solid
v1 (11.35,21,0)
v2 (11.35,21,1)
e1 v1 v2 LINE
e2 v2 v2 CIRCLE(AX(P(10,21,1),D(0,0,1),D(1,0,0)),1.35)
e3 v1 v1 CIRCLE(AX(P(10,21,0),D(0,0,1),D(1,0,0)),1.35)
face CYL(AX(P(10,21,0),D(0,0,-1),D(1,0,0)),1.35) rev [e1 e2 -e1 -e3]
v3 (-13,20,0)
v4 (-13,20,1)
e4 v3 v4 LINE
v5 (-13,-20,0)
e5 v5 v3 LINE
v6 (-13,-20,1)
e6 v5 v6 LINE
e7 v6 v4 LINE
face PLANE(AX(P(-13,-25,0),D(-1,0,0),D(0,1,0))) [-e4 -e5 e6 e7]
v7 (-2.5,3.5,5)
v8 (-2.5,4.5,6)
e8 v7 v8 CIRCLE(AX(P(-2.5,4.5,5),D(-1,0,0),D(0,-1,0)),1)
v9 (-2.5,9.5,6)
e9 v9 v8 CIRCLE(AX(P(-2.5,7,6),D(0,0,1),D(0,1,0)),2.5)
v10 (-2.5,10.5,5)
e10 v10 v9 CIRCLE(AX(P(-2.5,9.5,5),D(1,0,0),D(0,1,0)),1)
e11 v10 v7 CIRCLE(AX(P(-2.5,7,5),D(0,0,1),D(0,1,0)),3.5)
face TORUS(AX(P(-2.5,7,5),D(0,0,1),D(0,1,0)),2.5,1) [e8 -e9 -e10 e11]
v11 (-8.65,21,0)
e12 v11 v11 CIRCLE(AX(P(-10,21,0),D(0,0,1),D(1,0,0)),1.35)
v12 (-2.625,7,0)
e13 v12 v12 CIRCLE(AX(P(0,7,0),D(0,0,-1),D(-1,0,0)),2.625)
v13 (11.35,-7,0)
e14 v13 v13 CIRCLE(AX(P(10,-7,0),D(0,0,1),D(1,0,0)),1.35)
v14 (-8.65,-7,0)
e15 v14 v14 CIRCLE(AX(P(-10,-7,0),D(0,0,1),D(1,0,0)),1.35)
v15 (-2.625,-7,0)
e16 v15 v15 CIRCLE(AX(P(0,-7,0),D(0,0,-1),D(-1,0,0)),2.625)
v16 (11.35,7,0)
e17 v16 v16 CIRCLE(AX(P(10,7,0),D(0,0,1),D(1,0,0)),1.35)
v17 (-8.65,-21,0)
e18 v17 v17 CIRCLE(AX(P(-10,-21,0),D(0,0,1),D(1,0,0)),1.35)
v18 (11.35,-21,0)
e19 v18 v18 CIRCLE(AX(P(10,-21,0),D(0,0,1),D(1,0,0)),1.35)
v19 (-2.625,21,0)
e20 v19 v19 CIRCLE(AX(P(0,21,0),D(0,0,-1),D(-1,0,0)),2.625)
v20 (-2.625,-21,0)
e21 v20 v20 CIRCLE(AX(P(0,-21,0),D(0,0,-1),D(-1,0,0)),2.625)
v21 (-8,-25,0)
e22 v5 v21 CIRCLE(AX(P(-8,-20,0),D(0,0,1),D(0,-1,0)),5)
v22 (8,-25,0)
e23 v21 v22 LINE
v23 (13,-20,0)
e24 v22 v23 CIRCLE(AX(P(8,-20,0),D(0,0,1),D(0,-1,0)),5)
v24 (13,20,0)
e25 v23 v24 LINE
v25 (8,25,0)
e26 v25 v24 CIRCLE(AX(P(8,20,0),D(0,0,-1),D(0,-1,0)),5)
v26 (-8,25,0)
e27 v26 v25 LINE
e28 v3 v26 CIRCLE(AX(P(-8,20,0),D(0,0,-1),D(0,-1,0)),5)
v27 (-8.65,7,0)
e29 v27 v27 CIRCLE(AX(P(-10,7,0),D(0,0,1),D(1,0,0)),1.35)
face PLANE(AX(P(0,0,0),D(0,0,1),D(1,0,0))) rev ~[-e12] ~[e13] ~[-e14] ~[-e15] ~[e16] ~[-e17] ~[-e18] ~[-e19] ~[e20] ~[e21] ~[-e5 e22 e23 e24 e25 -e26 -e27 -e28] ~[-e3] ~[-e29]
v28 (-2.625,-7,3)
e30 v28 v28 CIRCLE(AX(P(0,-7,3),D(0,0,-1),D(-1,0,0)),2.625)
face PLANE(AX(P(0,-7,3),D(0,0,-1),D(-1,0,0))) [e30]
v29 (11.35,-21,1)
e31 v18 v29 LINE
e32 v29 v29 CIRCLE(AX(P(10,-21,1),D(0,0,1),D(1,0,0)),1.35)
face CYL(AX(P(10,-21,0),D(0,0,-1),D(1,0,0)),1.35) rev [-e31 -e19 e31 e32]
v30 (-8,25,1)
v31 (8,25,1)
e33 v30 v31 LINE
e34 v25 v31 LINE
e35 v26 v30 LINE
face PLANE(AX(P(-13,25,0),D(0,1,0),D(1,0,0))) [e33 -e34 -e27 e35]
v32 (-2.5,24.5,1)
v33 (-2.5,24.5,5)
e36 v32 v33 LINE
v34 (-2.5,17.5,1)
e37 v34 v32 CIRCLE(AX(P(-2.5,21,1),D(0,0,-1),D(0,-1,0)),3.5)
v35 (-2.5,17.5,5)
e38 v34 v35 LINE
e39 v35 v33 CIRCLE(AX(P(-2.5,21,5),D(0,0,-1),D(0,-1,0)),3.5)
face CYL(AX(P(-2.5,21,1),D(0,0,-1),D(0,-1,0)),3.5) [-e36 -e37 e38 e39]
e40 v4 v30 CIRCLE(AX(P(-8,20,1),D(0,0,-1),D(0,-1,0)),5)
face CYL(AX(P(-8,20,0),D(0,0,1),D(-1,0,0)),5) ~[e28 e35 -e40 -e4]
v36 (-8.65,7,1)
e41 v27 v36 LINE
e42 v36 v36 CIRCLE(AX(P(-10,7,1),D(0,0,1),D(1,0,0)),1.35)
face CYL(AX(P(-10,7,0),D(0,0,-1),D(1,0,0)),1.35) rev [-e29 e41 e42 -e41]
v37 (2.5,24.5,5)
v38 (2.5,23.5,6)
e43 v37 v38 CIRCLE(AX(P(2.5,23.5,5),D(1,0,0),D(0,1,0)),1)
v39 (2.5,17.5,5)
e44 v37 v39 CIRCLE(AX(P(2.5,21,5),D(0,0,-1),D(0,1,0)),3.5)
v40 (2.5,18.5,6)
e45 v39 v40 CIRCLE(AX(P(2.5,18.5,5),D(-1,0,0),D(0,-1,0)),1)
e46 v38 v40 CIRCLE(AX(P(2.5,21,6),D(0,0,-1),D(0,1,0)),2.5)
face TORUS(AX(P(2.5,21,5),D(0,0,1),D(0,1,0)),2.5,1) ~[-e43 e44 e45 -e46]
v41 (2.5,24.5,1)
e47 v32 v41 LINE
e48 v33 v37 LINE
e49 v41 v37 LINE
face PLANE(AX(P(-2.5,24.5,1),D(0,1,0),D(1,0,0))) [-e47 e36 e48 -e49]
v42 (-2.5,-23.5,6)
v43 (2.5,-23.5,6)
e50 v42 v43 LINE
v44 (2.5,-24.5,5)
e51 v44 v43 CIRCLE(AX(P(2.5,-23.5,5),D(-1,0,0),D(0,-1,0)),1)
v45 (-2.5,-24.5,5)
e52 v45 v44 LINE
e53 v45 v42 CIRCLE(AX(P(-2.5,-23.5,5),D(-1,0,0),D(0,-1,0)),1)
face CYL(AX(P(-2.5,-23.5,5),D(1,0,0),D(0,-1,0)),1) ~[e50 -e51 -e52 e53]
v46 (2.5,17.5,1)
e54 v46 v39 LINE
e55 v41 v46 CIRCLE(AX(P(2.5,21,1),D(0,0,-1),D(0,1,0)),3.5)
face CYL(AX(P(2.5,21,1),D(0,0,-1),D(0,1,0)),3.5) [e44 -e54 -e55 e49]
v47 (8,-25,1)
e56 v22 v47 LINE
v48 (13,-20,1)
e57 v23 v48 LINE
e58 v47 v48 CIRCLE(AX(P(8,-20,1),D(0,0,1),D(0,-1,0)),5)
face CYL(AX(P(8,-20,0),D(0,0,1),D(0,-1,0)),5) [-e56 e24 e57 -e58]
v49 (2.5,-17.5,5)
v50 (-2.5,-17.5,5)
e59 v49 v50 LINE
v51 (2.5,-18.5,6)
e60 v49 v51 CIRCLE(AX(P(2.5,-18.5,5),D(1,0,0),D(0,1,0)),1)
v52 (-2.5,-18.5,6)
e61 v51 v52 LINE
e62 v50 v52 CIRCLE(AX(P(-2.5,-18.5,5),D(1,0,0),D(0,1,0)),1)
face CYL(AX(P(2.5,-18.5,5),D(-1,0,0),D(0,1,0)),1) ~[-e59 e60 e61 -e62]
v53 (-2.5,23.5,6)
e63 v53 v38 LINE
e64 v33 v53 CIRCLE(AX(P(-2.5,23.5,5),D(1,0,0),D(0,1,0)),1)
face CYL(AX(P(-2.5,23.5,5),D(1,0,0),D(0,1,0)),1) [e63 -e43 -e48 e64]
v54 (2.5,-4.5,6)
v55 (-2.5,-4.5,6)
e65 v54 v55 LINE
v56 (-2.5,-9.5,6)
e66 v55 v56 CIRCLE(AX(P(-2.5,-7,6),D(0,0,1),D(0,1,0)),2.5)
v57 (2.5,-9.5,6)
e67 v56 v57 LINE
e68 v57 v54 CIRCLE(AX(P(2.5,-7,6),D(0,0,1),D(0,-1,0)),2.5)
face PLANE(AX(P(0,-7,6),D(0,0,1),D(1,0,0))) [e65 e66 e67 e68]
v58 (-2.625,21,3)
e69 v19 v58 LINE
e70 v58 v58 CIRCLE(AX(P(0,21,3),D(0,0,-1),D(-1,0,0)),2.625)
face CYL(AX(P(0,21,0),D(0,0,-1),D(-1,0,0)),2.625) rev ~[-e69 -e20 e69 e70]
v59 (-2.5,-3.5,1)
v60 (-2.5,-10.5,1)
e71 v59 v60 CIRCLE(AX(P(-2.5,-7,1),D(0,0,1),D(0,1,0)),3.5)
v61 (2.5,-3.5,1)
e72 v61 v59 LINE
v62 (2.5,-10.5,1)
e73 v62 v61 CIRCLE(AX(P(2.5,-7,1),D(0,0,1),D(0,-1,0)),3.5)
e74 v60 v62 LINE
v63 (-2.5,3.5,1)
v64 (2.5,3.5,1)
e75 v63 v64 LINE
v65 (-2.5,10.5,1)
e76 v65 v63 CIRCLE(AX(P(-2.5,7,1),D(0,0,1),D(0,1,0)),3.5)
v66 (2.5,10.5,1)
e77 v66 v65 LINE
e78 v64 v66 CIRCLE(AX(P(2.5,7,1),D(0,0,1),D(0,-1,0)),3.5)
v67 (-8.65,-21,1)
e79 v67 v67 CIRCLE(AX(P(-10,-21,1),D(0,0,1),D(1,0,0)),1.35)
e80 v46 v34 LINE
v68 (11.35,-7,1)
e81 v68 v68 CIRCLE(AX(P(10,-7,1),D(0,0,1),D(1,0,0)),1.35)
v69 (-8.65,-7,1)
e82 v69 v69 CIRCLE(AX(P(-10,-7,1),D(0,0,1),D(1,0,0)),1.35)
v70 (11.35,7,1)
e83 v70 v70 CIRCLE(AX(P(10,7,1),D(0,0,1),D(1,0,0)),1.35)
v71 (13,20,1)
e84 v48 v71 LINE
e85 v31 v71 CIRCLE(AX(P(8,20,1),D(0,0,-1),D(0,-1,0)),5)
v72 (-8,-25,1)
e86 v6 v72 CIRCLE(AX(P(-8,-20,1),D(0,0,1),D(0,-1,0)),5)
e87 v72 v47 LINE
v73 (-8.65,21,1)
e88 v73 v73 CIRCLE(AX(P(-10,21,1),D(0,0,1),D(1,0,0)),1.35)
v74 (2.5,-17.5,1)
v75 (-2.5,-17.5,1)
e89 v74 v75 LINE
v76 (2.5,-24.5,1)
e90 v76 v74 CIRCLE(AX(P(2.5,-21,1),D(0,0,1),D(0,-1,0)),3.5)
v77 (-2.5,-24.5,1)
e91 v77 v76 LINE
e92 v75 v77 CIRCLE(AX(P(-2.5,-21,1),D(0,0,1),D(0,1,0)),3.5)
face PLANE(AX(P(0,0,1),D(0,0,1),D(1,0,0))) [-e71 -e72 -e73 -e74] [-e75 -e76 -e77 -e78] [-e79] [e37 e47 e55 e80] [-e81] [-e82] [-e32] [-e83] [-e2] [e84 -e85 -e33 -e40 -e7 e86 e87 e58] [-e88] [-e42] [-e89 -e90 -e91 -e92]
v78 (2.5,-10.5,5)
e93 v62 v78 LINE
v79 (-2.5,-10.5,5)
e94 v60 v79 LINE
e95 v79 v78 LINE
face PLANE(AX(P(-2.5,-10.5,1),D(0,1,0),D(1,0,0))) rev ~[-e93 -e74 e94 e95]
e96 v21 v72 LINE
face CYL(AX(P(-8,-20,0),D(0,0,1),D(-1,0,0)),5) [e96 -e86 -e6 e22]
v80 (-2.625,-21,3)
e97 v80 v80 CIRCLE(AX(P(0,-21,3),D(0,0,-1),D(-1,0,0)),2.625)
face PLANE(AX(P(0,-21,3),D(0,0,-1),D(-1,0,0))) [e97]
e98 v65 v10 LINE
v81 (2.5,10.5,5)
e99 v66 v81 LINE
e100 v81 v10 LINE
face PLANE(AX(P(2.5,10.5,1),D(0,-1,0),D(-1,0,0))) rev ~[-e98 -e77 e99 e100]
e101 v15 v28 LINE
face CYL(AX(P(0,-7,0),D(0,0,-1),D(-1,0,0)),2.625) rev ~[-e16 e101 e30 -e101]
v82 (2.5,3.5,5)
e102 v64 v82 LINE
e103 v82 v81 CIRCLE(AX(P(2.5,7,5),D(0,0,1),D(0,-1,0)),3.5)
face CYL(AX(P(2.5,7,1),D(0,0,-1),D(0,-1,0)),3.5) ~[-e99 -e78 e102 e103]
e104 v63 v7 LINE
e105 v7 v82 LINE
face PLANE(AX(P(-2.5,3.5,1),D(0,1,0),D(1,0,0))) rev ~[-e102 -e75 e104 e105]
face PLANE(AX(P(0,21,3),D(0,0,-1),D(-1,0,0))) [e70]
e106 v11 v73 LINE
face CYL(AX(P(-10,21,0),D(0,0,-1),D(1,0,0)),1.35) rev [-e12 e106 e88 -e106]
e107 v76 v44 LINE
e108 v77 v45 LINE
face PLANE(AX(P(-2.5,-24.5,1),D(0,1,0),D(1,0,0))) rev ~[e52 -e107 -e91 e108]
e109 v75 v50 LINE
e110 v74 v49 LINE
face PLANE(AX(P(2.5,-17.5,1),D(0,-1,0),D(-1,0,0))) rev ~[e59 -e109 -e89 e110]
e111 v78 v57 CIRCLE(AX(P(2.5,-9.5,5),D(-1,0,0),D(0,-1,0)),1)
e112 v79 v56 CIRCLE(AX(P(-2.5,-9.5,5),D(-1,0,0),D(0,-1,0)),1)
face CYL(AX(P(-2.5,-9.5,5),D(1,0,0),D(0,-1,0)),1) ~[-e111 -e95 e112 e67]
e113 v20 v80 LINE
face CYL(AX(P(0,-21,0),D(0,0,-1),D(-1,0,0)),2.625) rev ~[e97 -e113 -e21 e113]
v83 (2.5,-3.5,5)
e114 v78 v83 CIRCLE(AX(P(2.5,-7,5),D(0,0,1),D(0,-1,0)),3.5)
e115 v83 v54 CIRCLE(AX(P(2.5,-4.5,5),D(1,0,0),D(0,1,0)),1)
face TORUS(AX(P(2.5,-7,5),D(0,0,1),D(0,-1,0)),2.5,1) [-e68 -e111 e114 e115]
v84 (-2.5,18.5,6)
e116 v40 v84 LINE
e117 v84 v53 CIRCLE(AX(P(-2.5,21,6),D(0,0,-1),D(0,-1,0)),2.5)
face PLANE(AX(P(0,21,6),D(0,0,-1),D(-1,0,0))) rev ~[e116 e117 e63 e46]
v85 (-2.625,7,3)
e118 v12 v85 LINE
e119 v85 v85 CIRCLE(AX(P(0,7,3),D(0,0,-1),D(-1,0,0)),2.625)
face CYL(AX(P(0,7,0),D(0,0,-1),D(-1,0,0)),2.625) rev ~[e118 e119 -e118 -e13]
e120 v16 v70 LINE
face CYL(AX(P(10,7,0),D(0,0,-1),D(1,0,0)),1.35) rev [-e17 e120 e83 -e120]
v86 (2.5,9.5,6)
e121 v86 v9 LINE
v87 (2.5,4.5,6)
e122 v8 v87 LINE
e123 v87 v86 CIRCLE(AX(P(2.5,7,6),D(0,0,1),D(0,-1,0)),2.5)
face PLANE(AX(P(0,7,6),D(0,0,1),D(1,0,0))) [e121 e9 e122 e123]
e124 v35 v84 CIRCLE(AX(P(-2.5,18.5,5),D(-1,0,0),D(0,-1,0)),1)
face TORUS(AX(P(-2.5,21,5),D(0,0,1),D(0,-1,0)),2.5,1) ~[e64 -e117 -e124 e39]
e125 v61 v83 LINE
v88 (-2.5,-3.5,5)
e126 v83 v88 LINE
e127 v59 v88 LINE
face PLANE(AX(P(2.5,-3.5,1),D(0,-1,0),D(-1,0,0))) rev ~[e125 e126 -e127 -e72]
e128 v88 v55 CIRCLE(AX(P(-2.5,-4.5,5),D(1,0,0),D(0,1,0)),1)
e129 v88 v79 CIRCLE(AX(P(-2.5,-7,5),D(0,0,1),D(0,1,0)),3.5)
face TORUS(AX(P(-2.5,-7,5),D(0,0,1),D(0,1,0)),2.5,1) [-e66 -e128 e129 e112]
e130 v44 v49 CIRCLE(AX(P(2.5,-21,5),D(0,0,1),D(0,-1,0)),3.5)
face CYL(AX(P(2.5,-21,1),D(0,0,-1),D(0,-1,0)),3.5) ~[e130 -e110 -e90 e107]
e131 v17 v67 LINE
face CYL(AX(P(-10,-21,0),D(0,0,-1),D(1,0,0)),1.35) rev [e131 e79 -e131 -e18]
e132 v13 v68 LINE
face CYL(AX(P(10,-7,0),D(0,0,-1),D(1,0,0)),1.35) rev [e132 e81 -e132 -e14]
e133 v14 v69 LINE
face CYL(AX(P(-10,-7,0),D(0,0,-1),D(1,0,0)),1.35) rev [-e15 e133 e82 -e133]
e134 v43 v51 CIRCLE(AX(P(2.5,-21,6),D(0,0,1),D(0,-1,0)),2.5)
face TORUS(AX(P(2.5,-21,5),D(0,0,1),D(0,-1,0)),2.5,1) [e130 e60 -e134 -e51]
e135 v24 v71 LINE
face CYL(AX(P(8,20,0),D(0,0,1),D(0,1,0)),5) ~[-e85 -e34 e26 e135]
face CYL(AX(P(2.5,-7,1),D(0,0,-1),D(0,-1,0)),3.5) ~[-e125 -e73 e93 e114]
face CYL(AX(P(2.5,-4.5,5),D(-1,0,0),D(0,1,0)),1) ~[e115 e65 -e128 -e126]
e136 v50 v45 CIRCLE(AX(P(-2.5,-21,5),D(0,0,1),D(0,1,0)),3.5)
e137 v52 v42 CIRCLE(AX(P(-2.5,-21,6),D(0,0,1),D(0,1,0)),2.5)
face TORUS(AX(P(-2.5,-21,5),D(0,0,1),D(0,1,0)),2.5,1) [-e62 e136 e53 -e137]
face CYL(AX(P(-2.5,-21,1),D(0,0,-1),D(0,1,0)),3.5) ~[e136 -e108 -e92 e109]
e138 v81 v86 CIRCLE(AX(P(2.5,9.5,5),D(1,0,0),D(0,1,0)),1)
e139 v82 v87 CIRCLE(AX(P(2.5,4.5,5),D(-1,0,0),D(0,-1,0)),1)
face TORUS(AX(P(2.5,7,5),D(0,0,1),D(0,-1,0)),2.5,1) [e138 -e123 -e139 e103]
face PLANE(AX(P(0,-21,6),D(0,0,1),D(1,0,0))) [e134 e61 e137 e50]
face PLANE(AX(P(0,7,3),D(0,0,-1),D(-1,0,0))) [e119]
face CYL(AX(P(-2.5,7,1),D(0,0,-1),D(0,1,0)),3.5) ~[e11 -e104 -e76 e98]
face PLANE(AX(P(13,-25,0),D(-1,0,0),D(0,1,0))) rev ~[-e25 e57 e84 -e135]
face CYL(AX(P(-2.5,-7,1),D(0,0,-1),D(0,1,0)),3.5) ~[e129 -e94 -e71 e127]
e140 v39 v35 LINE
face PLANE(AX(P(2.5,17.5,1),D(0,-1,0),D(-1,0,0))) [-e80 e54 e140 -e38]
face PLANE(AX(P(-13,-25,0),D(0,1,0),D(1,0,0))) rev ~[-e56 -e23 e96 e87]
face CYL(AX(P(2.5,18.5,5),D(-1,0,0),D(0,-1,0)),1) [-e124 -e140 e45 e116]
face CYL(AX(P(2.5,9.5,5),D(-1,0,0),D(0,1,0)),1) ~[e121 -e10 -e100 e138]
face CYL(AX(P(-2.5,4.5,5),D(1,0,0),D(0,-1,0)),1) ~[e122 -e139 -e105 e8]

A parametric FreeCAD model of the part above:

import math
import FreeCAD as App
import Part
import Sketcher


def edges_at(feature, points):
    """Names of the edges that pass closest to the given points."""
    edges = feature.Shape.Edges
    near = lambda p: min(range(len(edges)), key=lambda i: edges[i].distToShape(Part.Vertex(*p))[0])
    return sorted({f"Edge{near(p) + 1}" for p in points})


def add_polygon(sketch, points):
    """Adds a closed chain of lines whose ends are joined by coincident constraints."""
    first, n = sketch.GeometryCount, len(points)
    for a, b in zip(points, points[1:] + points[:1]):
        sketch.addGeometry(Part.LineSegment(App.Vector(*a, 0), App.Vector(*b, 0)), False)
    for i in range(n):
        sketch.addConstraint(Sketcher.Constraint("Coincident", first + i, 2, first + (i + 1) % n, 1))

doc = App.newDocument("Part")
body = doc.addObject("PartDesign::Body", "Body")

# Sketch on XY plane
sketch1 = doc.addObject("Sketcher::SketchObject", "Sketch")
body.addObject(sketch1)
sketch1.AttachmentSupport = (doc.XY_Plane, [""])
sketch1.MapMode = "FlatFace"
add_polygon(sketch1, [(-13, 25), (-13, -25), (13, -25), (13, 25)])  # lines 0-3
sketch1.addGeometry(Part.Circle(App.Vector(-10, -21, 0), App.Vector(0, 0, 1), 1.35), False)  # 4
sketch1.addGeometry(Part.Circle(App.Vector(-10, -7, 0), App.Vector(0, 0, 1), 1.35), False)  # 5
sketch1.addGeometry(Part.Circle(App.Vector(10, -21, 0), App.Vector(0, 0, 1), 1.35), False)  # 6
sketch1.addGeometry(Part.Circle(App.Vector(10, -7, 0), App.Vector(0, 0, 1), 1.35), False)  # 7
sketch1.addGeometry(Part.Circle(App.Vector(-10, 7, 0), App.Vector(0, 0, 1), 1.35), False)  # 8
sketch1.addGeometry(Part.Circle(App.Vector(-10, 21, 0), App.Vector(0, 0, 1), 1.35), False)  # 9
sketch1.addGeometry(Part.Circle(App.Vector(10, 7, 0), App.Vector(0, 0, 1), 1.35), False)  # 10
sketch1.addGeometry(Part.Circle(App.Vector(10, 21, 0), App.Vector(0, 0, 1), 1.35), False)  # 11
sketch1.addConstraint([
    Sketcher.Constraint("Vertical", 0),
    Sketcher.Constraint("Horizontal", 1),
    Sketcher.Constraint("Vertical", 2),
    Sketcher.Constraint("Horizontal", 3),
    Sketcher.Constraint("Equal", 4, 5),
    Sketcher.Constraint("Equal", 5, 6),
    Sketcher.Constraint("Equal", 6, 7),
    Sketcher.Constraint("Equal", 7, 8),
    Sketcher.Constraint("Equal", 8, 9),
    Sketcher.Constraint("Equal", 9, 10),
    Sketcher.Constraint("Equal", 10, 11),
    Sketcher.Constraint("Symmetric", 7, 3, 8, 3, -1, 1),
    Sketcher.Constraint("Symmetric", 6, 3, 9, 3, -1, 1),
    Sketcher.Constraint("Symmetric", 5, 3, 10, 3, -1, 1),
    Sketcher.Constraint("Symmetric", 4, 3, 11, 3, -1, 1),
    Sketcher.Constraint("Symmetric", 0, 2, 2, 2, -1, 1),
    Sketcher.Constraint("Symmetric", 4, 3, 6, 3, -2),
    Sketcher.Constraint("Symmetric", 5, 3, 7, 3, -2),
    Sketcher.Constraint("Vertical", 4, 3, 5, 3),
    Sketcher.Constraint("Diameter", 4, 2.7),
    Sketcher.Constraint("DistanceX", 1, 1, 1, 2, 26.0),
    Sketcher.Constraint("DistanceY", 0, 2, 0, 1, 50.0),
    Sketcher.Constraint("DistanceX", 4, 3, -1, 1, 10.0),
    Sketcher.Constraint("DistanceY", 4, 3, -1, 1, 21.0),
    Sketcher.Constraint("DistanceY", 5, 3, -1, 1, 7.0),
])
pad1 = doc.addObject("PartDesign::Pad", "Pad")
body.addObject(pad1)
pad1.Profile = sketch1
pad1.Length = 1

# Sketch on XY plane
sketch2 = doc.addObject("Sketcher::SketchObject", "Sketch001")
body.addObject(sketch2)
sketch2.AttachmentSupport = (doc.XY_Plane, [""])
sketch2.MapMode = "FlatFace"
sketch2.AttachmentOffset = App.Placement(App.Vector(0, 0, 1), App.Rotation())
sketch2.addGeometry([
    Part.LineSegment(App.Vector(2.5, 24.5, 0), App.Vector(-2.5, 24.5, 0)),  # 0
    Part.ArcOfCircle(Part.Circle(App.Vector(-2.5, 21, 0), App.Vector(0, 0, 1), 3.5), math.radians(90), math.radians(270)),  # 1
    Part.LineSegment(App.Vector(-2.5, 17.5, 0), App.Vector(2.5, 17.5, 0)),  # 2
    Part.ArcOfCircle(Part.Circle(App.Vector(2.5, 21, 0), App.Vector(0, 0, 1), 3.5), math.radians(-90), math.radians(90)),  # 3
    Part.LineSegment(App.Vector(-2.5, 3.5, 0), App.Vector(2.5, 3.5, 0)),  # 4
    Part.ArcOfCircle(Part.Circle(App.Vector(2.5, 7, 0), App.Vector(0, 0, 1), 3.5), math.radians(-90), math.radians(90)),  # 5
    Part.LineSegment(App.Vector(2.5, 10.5, 0), App.Vector(-2.5, 10.5, 0)),  # 6
    Part.ArcOfCircle(Part.Circle(App.Vector(-2.5, 7, 0), App.Vector(0, 0, 1), 3.5), math.radians(90), math.radians(270)),  # 7
    Part.LineSegment(App.Vector(-2.5, -10.5, 0), App.Vector(2.5, -10.5, 0)),  # 8
    Part.ArcOfCircle(Part.Circle(App.Vector(2.5, -7, 0), App.Vector(0, 0, 1), 3.5), math.radians(-90), math.radians(90)),  # 9
    Part.LineSegment(App.Vector(2.5, -3.5, 0), App.Vector(-2.5, -3.5, 0)),  # 10
    Part.ArcOfCircle(Part.Circle(App.Vector(-2.5, -7, 0), App.Vector(0, 0, 1), 3.5), math.radians(90), math.radians(270)),  # 11
    Part.LineSegment(App.Vector(-2.5, -24.5, 0), App.Vector(2.5, -24.5, 0)),  # 12
    Part.ArcOfCircle(Part.Circle(App.Vector(2.5, -21, 0), App.Vector(0, 0, 1), 3.5), math.radians(-90), math.radians(90)),  # 13
    Part.LineSegment(App.Vector(2.5, -17.5, 0), App.Vector(-2.5, -17.5, 0)),  # 14
    Part.ArcOfCircle(Part.Circle(App.Vector(-2.5, -21, 0), App.Vector(0, 0, 1), 3.5), math.radians(90), math.radians(270)),  # 15
], False)
sketch2.addConstraint([
    Sketcher.Constraint("Tangent", 0, 2, 1, 1),
    Sketcher.Constraint("Tangent", 1, 2, 2, 1),
    Sketcher.Constraint("Tangent", 2, 2, 3, 1),
    Sketcher.Constraint("Tangent", 3, 2, 0, 1),
    Sketcher.Constraint("Tangent", 4, 2, 5, 1),
    Sketcher.Constraint("Tangent", 5, 2, 6, 1),
    Sketcher.Constraint("Tangent", 6, 2, 7, 1),
    Sketcher.Constraint("Tangent", 7, 2, 4, 1),
    Sketcher.Constraint("Tangent", 8, 2, 9, 1),
    Sketcher.Constraint("Tangent", 9, 2, 10, 1),
    Sketcher.Constraint("Tangent", 10, 2, 11, 1),
    Sketcher.Constraint("Tangent", 11, 2, 8, 1),
    Sketcher.Constraint("Tangent", 12, 2, 13, 1),
    Sketcher.Constraint("Tangent", 13, 2, 14, 1),
    Sketcher.Constraint("Tangent", 14, 2, 15, 1),
    Sketcher.Constraint("Tangent", 15, 2, 12, 1),
    Sketcher.Constraint("Horizontal", 0),
    Sketcher.Constraint("Horizontal", 2),
    Sketcher.Constraint("Horizontal", 4),
    Sketcher.Constraint("Horizontal", 6),
    Sketcher.Constraint("Horizontal", 8),
    Sketcher.Constraint("Horizontal", 10),
    Sketcher.Constraint("Horizontal", 12),
    Sketcher.Constraint("Horizontal", 14),
    Sketcher.Constraint("Equal", 3, 5),
    Sketcher.Constraint("Equal", 7, 9),
    Sketcher.Constraint("Equal", 11, 13),
    Sketcher.Constraint("Symmetric", 7, 3, 9, 3, -1, 1),
    Sketcher.Constraint("Symmetric", 1, 3, 13, 3, -1, 1),
    Sketcher.Constraint("Vertical", 3, 3, 5, 3),
    Sketcher.Constraint("Vertical", 1, 3, 7, 3),
    Sketcher.Constraint("Vertical", 5, 3, 9, 3),
    Sketcher.Constraint("Vertical", 7, 3, 11, 3),
    Sketcher.Constraint("Vertical", 11, 3, 15, 3),
    Sketcher.Constraint("Radius", 1, 3.5),
    Sketcher.Constraint("DistanceX", 0, 2, 0, 1, 5.0),
    Sketcher.Constraint("DistanceY", -1, 1, 1, 3, 21.0),
    Sketcher.Constraint("DistanceY", -1, 1, 5, 3, 7.0),
])
pad2 = doc.addObject("PartDesign::Pad", "Pad001")
body.addObject(pad2)
pad2.Profile = sketch2
pad2.Length = 5
doc.recompute()

fillet = doc.addObject("PartDesign::Fillet", "Fillet")
body.addObject(fillet)
fillet.Base = (pad2, edges_at(pad2, [
    (-6, 21, 6),
    (0, 17.5, 6),
    (6, 21, 6),
    (0, 24.5, 6),
    (-6, 7, 6),
    (0, 3.5, 6),
    (6, 7, 6),
    (0, 10.5, 6),
    (-6, -7, 6),
    (0, -10.5, 6),
    (6, -7, 6),
    (0, -3.5, 6),
    (-6, -21, 6),
    (0, -24.5, 6),
    (6, -21, 6),
    (0, -17.5, 6),
]))
fillet.Radius = 1
doc.recompute()

fillet2 = doc.addObject("PartDesign::Fillet", "Fillet001")
body.addObject(fillet2)
fillet2.Base = (fillet, edges_at(fillet, [
    (-13, 25, 0.5),
    (13, 25, 0.5),
    (13, -25, 0.5),
    (-13, -25, 0.5),
]))
fillet2.Radius = 5

# Sketch on XY plane
sketch3 = doc.addObject("Sketcher::SketchObject", "Sketch002")
body.addObject(sketch3)
sketch3.AttachmentSupport = (doc.XY_Plane, [""])
sketch3.MapMode = "FlatFace"
sketch3.addGeometry([
    Part.Circle(App.Vector(0, 21, 0), App.Vector(0, 0, 1), 2.625),
    Part.Circle(App.Vector(0, 7, 0), App.Vector(0, 0, 1), 2.625),
    Part.Circle(App.Vector(0, -7, 0), App.Vector(0, 0, 1), 2.625),
    Part.Circle(App.Vector(0, -21, 0), App.Vector(0, 0, 1), 2.625),
], False)
sketch3.addConstraint([
    Sketcher.Constraint("Equal", 0, 1),
    Sketcher.Constraint("Equal", 1, 2),
    Sketcher.Constraint("Equal", 2, 3),
    Sketcher.Constraint("Symmetric", 1, 3, 2, 3, -1, 1),
    Sketcher.Constraint("Symmetric", 0, 3, 3, 3, -1, 1),
    Sketcher.Constraint("PointOnObject", 0, 3, -2),
    Sketcher.Constraint("PointOnObject", 1, 3, -2),
    Sketcher.Constraint("Diameter", 0, 5.25),
    Sketcher.Constraint("DistanceY", -1, 1, 0, 3, 21.0),
    Sketcher.Constraint("DistanceY", -1, 1, 1, 3, 7.0),
])
pocket1 = doc.addObject("PartDesign::Pocket", "Pocket")
body.addObject(pocket1)
pocket1.Profile = sketch3
pocket1.Length = 3
pocket1.Reversed = True

doc.recompute()
